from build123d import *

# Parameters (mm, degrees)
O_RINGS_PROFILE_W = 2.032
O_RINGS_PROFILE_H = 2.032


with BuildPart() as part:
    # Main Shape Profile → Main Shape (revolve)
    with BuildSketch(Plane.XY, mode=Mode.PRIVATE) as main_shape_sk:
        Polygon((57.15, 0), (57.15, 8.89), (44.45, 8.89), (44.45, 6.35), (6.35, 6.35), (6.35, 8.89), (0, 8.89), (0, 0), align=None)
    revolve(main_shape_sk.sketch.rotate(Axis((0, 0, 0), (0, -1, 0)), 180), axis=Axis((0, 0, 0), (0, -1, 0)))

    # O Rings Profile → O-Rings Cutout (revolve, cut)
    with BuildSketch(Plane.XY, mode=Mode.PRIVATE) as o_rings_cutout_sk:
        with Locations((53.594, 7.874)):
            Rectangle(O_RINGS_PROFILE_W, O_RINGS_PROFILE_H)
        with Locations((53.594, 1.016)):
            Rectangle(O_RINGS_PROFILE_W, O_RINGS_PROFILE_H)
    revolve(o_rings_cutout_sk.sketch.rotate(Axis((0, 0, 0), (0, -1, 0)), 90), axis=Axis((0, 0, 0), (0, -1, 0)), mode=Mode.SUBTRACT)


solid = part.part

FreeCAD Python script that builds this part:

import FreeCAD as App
import Part
import Sketcher

V = App.Vector
Q = App.Units.Quantity

doc = App.newDocument("Part")
params = doc.addObject("Spreadsheet::Sheet", "Params")
for row, (alias, value) in enumerate([
    ("sketch1_width", "0.5 in"),
    ("sketch1_width2", "1.5 in"),
    ("sketch1_height", "0.1 in"),
    ("sketch1_width3", "0.25 in"),
    ("sketch1_height2", "0.35 in"),
    ("revolution_angle", "360 deg"),
    ("sketch2_width", "0.08 in"),
    ("groove_angle", "360 deg"),
], start=1):
    params.set(f"A{row}", alias)
    params.set(f"B{row}", "=" + value)
    params.setAlias(f"B{row}", alias)

body = doc.addObject("PartDesign::Body", "Body")

# Sketch on XY plane
sketch1 = body.newObject("Sketcher::SketchObject", "Sketch")
sketch1.AttachmentSupport = (doc.getObject("XY_Plane"), [""])
sketch1.MapMode = "FlatFace"
sketch1.addGeometry([
    Part.LineSegment(V(57.1, 0, 0), V(57.1, 8.9, 0)),  # 0
    Part.LineSegment(V(57.1, 8.9, 0), V(44.5, 8.9, 0)),  # 1
    Part.LineSegment(V(44.5, 8.9, 0), V(44.5, 6.3, 0)),  # 2
    Part.LineSegment(V(44.5, 6.3, 0), V(6.3, 6.3, 0)),  # 3
    Part.LineSegment(V(6.3, 6.3, 0), V(6.3, 8.9, 0)),  # 4
    Part.LineSegment(V(6.3, 8.9, 0), V(0, 8.9, 0)),  # 5
    Part.LineSegment(V(0, 8.9, 0), V(0, 0, 0)),  # 6
    Part.LineSegment(V(0, 0, 0), V(57.1, 0, 0)),  # 7
], False)
sketch1.addConstraint([
    Sketcher.Constraint("Coincident", 0, 2, 1, 1),
    Sketcher.Constraint("Coincident", 1, 2, 2, 1),
    Sketcher.Constraint("Coincident", 2, 2, 3, 1),
    Sketcher.Constraint("Coincident", 3, 2, 4, 1),
    Sketcher.Constraint("Coincident", 4, 2, 5, 1),
    Sketcher.Constraint("Coincident", 5, 2, 6, 1),
    Sketcher.Constraint("Coincident", 6, 2, 7, 1),
    Sketcher.Constraint("Coincident", 7, 2, 0, 1),
    Sketcher.Constraint("Vertical", 0),
    Sketcher.Constraint("Horizontal", 1),
    Sketcher.Constraint("Vertical", 2),
    Sketcher.Constraint("Horizontal", 3),
    Sketcher.Constraint("Vertical", 4),
    Sketcher.Constraint("Horizontal", 5),
    Sketcher.Constraint("Vertical", 6),
    Sketcher.Constraint("Horizontal", 7),
    Sketcher.Constraint("Coincident", 6, 2, -1, 1),
    Sketcher.Constraint("Horizontal", 1, 2, 4, 2),
    Sketcher.Constraint("DistanceX", 1, 2, 1, 1, Q("0.5 in")),
    Sketcher.Constraint("DistanceX", 3, 2, 3, 1, Q("1.5 in")),
    Sketcher.Constraint("DistanceY", 2, 2, 2, 1, Q("0.1 in")),
    Sketcher.Constraint("DistanceX", 5, 2, 5, 1, Q("0.25 in")),
    Sketcher.Constraint("DistanceY", 0, 1, 0, 2, Q("0.35 in")),
])
sketch1.setExpression("Constraints[18]", "Params.sketch1_width")
sketch1.setExpression("Constraints[19]", "Params.sketch1_width2")
sketch1.setExpression("Constraints[20]", "Params.sketch1_height")
sketch1.setExpression("Constraints[21]", "Params.sketch1_width3")
sketch1.setExpression("Constraints[22]", "Params.sketch1_height2")
revolution = body.newObject("PartDesign::Revolution", "Revolution")
revolution.Profile = sketch1
revolution.ReferenceAxis = (sketch1, ["V_Axis"])
revolution.setExpression("Angle", "Params.revolution_angle")

# Sketch on XY plane
sketch2 = body.newObject("Sketcher::SketchObject", "Sketch001")
sketch2.AttachmentSupport = (doc.getObject("XY_Plane"), [""])
sketch2.MapMode = "FlatFace"
sketch2.addGeometry([
    Part.LineSegment(V(52.6, 8.9, 0), V(52.6, 6.9, 0)),  # 0
    Part.LineSegment(V(52.6, 6.9, 0), V(54.6, 6.9, 0)),  # 1
    Part.LineSegment(V(54.6, 6.9, 0), V(54.6, 8.9, 0)),  # 2
    Part.LineSegment(V(54.6, 8.9, 0), V(52.6, 8.9, 0)),  # 3
    Part.LineSegment(V(52.6, 2, 0), V(52.6, 0, 0)),  # 4
    Part.LineSegment(V(52.6, 0, 0), V(54.6, 0, 0)),  # 5
    Part.LineSegment(V(54.6, 0, 0), V(54.6, 2, 0)),  # 6
    Part.LineSegment(V(54.6, 2, 0), V(52.6, 2, 0)),  # 7
], False)
sketch2.addConstraint([
    Sketcher.Constraint("Coincident", 0, 2, 1, 1),
    Sketcher.Constraint("Coincident", 1, 2, 2, 1),
    Sketcher.Constraint("Coincident", 2, 2, 3, 1),
    Sketcher.Constraint("Coincident", 3, 2, 0, 1),
    Sketcher.Constraint("Coincident", 4, 2, 5, 1),
    Sketcher.Constraint("Coincident", 5, 2, 6, 1),
    Sketcher.Constraint("Coincident", 6, 2, 7, 1),
    Sketcher.Constraint("Coincident", 7, 2, 4, 1),
    Sketcher.Constraint("Vertical", 0),
    Sketcher.Constraint("Horizontal", 1),
    Sketcher.Constraint("Vertical", 2),
    Sketcher.Constraint("Horizontal", 3),
    Sketcher.Constraint("Vertical", 4),
    Sketcher.Constraint("Horizontal", 5),
    Sketcher.Constraint("Vertical", 6),
    Sketcher.Constraint("Horizontal", 7),
    Sketcher.Constraint("PointOnObject", 4, 2, -1),
    Sketcher.Constraint("Vertical", 3, 2, 4, 2),
    Sketcher.Constraint("Vertical", 2, 2, 5, 2),
    Sketcher.Constraint("Equal", 7, 0),
    Sketcher.Constraint("Equal", 2, 4),
    Sketcher.Constraint("DistanceX", 1, 1, 1, 2, Q("0.08 in")),
    Sketcher.Constraint("DistanceX", -1, 1, 0, 2, Q("2.07 in")),
    Sketcher.Constraint("DistanceY", -1, 1, 0, 2, Q("0.27 in")),
])
sketch2.setExpression("Constraints[21]", "Params.sketch2_width")
groove = body.newObject("PartDesign::Groove", "Groove")
groove.Profile = sketch2
groove.ReferenceAxis = (sketch2, ["V_Axis"])
groove.setExpression("Angle", "Params.groove_angle")

doc.recompute()
